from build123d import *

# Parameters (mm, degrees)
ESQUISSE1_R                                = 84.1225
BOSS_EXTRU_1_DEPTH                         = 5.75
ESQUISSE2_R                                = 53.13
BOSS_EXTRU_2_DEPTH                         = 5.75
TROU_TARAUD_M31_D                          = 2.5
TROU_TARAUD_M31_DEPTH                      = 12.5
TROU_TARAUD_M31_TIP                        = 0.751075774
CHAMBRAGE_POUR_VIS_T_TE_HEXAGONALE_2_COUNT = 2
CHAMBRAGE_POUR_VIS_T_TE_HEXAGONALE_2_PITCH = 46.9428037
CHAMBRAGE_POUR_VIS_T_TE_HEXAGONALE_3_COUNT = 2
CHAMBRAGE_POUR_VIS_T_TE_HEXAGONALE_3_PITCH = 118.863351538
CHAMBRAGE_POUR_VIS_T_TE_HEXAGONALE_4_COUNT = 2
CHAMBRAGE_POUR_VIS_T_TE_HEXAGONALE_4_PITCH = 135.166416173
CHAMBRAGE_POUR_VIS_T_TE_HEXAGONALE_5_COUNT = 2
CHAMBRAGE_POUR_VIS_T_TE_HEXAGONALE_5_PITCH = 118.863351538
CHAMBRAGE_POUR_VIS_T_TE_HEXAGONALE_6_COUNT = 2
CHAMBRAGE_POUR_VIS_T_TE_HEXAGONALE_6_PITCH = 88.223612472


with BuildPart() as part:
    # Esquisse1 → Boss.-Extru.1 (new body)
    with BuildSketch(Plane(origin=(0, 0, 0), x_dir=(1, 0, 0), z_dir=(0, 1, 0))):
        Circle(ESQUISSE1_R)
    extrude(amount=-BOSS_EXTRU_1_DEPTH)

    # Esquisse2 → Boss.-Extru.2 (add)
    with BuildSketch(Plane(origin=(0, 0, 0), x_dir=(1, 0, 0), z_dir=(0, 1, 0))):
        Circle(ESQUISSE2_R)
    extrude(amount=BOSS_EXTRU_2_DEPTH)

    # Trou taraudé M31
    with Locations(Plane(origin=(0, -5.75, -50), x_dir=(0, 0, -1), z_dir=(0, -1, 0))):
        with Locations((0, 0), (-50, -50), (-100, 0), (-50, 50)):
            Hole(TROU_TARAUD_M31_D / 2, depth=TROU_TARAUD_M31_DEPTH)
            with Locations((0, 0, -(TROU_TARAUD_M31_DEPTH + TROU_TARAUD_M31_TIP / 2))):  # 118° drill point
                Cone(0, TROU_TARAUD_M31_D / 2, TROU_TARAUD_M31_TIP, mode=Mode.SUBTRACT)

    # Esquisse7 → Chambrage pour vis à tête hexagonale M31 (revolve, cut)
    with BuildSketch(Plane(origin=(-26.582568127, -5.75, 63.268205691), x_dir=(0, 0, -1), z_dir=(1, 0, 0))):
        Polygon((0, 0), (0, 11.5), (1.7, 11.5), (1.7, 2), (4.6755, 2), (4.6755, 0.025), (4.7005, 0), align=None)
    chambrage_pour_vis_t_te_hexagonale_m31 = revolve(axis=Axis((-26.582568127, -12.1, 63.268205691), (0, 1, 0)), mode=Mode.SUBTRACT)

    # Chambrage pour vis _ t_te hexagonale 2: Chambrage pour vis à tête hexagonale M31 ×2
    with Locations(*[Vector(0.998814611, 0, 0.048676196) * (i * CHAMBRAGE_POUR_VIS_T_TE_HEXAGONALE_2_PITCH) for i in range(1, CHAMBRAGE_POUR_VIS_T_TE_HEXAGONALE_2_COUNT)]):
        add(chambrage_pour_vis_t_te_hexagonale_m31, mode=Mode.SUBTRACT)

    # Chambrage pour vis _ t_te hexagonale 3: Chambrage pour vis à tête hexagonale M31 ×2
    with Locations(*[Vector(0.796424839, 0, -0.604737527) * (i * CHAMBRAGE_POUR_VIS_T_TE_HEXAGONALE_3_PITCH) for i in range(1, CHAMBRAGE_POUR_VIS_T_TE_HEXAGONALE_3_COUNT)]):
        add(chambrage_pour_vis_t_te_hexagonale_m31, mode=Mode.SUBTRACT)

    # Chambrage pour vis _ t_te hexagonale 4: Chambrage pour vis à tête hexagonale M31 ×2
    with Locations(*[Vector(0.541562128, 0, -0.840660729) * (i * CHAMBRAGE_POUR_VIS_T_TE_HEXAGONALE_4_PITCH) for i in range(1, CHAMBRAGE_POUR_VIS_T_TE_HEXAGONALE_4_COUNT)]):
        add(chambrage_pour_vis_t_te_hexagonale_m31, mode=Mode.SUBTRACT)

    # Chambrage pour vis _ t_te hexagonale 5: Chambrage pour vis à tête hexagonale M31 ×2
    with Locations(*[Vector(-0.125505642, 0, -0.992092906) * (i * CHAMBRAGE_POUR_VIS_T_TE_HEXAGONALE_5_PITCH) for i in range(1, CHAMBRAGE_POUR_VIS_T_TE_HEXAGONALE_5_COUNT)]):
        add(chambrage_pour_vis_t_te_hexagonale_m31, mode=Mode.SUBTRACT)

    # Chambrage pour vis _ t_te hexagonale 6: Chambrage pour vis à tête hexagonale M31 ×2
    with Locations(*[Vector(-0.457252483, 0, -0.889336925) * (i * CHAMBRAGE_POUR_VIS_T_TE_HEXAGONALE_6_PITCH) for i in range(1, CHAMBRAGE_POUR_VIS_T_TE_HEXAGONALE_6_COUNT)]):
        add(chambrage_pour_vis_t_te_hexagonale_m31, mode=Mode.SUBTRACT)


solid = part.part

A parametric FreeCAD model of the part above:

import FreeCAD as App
import Part
import Sketcher
from FreeCAD import Vector
Q = App.Units.Quantity


def add_polygon(sketch, points):
    """Adds a closed chain of lines whose ends are joined by coincident constraints."""
    first, n = sketch.GeometryCount, len(points)
    for a, b in zip(points, points[1:] + points[:1]):
        sketch.addGeometry(Part.LineSegment(App.Vector(*a, 0), App.Vector(*b, 0)), False)
    for i in range(n):
        sketch.addConstraint(Sketcher.Constraint("Coincident", first + i, 2, first + (i + 1) % n, 1))

doc = App.newDocument("Part")
body = doc.addObject("PartDesign::Body", "Body")

# Sketch on XZ plane
sketch1 = doc.addObject("Sketcher::SketchObject", "Sketch")
body.addObject(sketch1)
sketch1.AttachmentSupport = (doc.XZ_Plane, [""])
sketch1.MapMode = "FlatFace"
sketch1.addGeometry(Part.Circle(Vector(0, 0, 0), Vector(0, 0, 1), 84), False)
sketch1.addConstraint(Sketcher.Constraint("Coincident", 0, 3, -1, 1))
sketch1.addConstraint(Sketcher.Constraint("Diameter", 0, 168.245))
pad1 = doc.addObject("PartDesign::Pad", "Pad")
body.addObject(pad1)
pad1.Profile = sketch1
pad1.Length = 5.75

# Sketch on XZ plane
sketch2 = doc.addObject("Sketcher::SketchObject", "Sketch001")
body.addObject(sketch2)
sketch2.AttachmentSupport = (doc.XZ_Plane, [""])
sketch2.MapMode = "FlatFace"
sketch2.addGeometry(Part.Circle(Vector(0, 0, 0), Vector(0, 0, 1), 53), False)
sketch2.addConstraint(Sketcher.Constraint("Coincident", 0, 3, -1, 1))
sketch2.addConstraint(Sketcher.Constraint("Diameter", 0, 106.26))
pad2 = doc.addObject("PartDesign::Pad", "Pad001")
body.addObject(pad2)
pad2.Profile = sketch2
pad2.Length = 5.75
pad2.Reversed = True

# Sketch on XZ plane
sketch3 = doc.addObject("Sketcher::SketchObject", "Sketch002")
body.addObject(sketch3)
sketch3.AttachmentSupport = (doc.XZ_Plane, [""])
sketch3.MapMode = "FlatFace"
sketch3.AttachmentOffset = App.Placement(Vector(0, 0, 5.75), App.Rotation())
sketch3.addGeometry(Part.Circle(Vector(0, -50, 0), Vector(0, 0, 1), 1.2), False)
sketch3.addGeometry(Part.Circle(Vector(-50, 0, 0), Vector(0, 0, 1), 1.2), False)
sketch3.addGeometry(Part.Circle(Vector(0, 50, 0), Vector(0, 0, 1), 1.2), False)
sketch3.addGeometry(Part.Circle(Vector(50, 0, 0), Vector(0, 0, 1), 1.2), False)
sketch3.addConstraint(Sketcher.Constraint("Equal", 0, 1))
sketch3.addConstraint(Sketcher.Constraint("Equal", 1, 2))
sketch3.addConstraint(Sketcher.Constraint("Equal", 2, 3))
sketch3.addConstraint(Sketcher.Constraint("Symmetric", 0, 3, 2, 3, -1, 1))
sketch3.addConstraint(Sketcher.Constraint("Symmetric", 1, 3, 3, 3, -1, 1))
sketch3.addConstraint(Sketcher.Constraint("PointOnObject", 0, 3, -2))
sketch3.addConstraint(Sketcher.Constraint("PointOnObject", 1, 3, -1))
sketch3.addConstraint(Sketcher.Constraint("Diameter", 0, 2.5))
sketch3.addConstraint(Sketcher.Constraint("DistanceY", 0, 3, -1, 1, 50.0))
sketch3.addConstraint(Sketcher.Constraint("DistanceX", 1, 3, -1, 1, 50.0))
doc.recompute()
hole = doc.addObject("PartDesign::Hole", "Hole")
body.addObject(hole)
hole.Profile = sketch3
hole.ThreadType = "None"
hole.Diameter = 2.5
hole.DepthType = "Dimension"
hole.Depth = 12.5
hole.DrillPoint = "Angled"
hole.DrillPointAngle = 118

# Sketch on YZ plane
sketch4 = doc.addObject("Sketcher::SketchObject", "Sketch003")
body.addObject(sketch4)
sketch4.AttachmentSupport = (doc.YZ_Plane, [""])
sketch4.MapMode = "FlatFace"
sketch4.AttachmentOffset = App.Placement(Vector(0, 0, -26.582568), App.Rotation())
add_polygon(sketch4, [(5.75, 63.268), (-5.75, 63.268), (-5.75, 58.568), (-5.725, 58.593), (-3.75, 58.593), (-3.75, 61.568), (5.75, 61.568)])  # lines 0-6
sketch4.addGeometry(Part.LineSegment(Vector(-5.75, 63.268, 0), Vector(5.75, 63.268, 0)), True)  # axis
sketch4.addConstraint(Sketcher.Constraint("Horizontal", 0))
sketch4.addConstraint(Sketcher.Constraint("Vertical", 1))
sketch4.addConstraint(Sketcher.Constraint("Horizontal", 3))
sketch4.addConstraint(Sketcher.Constraint("Vertical", 4))
sketch4.addConstraint(Sketcher.Constraint("Horizontal", 5))
sketch4.addConstraint(Sketcher.Constraint("Vertical", 6))
sketch4.addConstraint(Sketcher.Constraint("Horizontal", 7))
sketch4.addConstraint(Sketcher.Constraint("Coincident", 7, 1, 0, 2))
sketch4.addConstraint(Sketcher.Constraint("Vertical", 5, 2, 7, 2))
sketch4.addConstraint(Sketcher.Constraint("Angle", 2, Q("45 deg")))
sketch4.addConstraint(Sketcher.Constraint("DistanceX", 0, 2, 0, 1, 11.5))
sketch4.addConstraint(Sketcher.Constraint("DistanceX", 5, 1, 5, 2, 9.5))
sketch4.addConstraint(Sketcher.Constraint("DistanceY", 6, 1, 6, 2, 1.7))
sketch4.addConstraint(Sketcher.Constraint("DistanceX", 3, 1, 3, 2, 1.975))
sketch4.addConstraint(Sketcher.Constraint("DistanceX", 0, 2, -1, 1, 5.75))
sketch4.addConstraint(Sketcher.Constraint("DistanceY", 1, 2, 1, 1, 4.7005))
sketch4.addConstraint(Sketcher.Constraint("DistanceY", -1, 1, 0, 2, 63.268206))
groove = doc.addObject("PartDesign::Groove", "Groove")
body.addObject(groove)
groove.Profile = sketch4
groove.ReferenceAxis = (sketch4, ["Axis0"])
groove.Angle = 360
doc.recompute()

datumline = doc.addObject("PartDesign::Line", "DatumLine")
body.addObject(datumline)
datumline.Placement = App.Placement(Vector(0, 0, 0), App.Rotation(Vector(0, 0, 1), Vector(0.998814611, 0, 0.048676196)))
linearpattern = doc.addObject("PartDesign::LinearPattern", "LinearPattern")
body.addObject(linearpattern)
linearpattern.Originals = [groove]
linearpattern.Direction = (datumline, [""])
linearpattern.Mode = "offset"
linearpattern.Offset = 46.942804
linearpattern.Occurrences = 2
body.Tip = linearpattern
doc.recompute()

datumline2 = doc.addObject("PartDesign::Line", "DatumLine001")
body.addObject(datumline2)
datumline2.Placement = App.Placement(Vector(0, 0, 0), App.Rotation(Vector(0, 0, 1), Vector(0.796424839, 0, -0.604737527)))
linearpattern2 = doc.addObject("PartDesign::LinearPattern", "LinearPattern001")
body.addObject(linearpattern2)
linearpattern2.Originals = [groove]
linearpattern2.Direction = (datumline2, [""])
linearpattern2.Mode = "offset"
linearpattern2.Offset = 118.863352
linearpattern2.Occurrences = 2
body.Tip = linearpattern2
doc.recompute()

datumline3 = doc.addObject("PartDesign::Line", "DatumLine002")
body.addObject(datumline3)
datumline3.Placement = App.Placement(Vector(0, 0, 0), App.Rotation(Vector(0, 0, 1), Vector(0.541562128, 0, -0.840660729)))
linearpattern3 = doc.addObject("PartDesign::LinearPattern", "LinearPattern002")
body.addObject(linearpattern3)
linearpattern3.Originals = [groove]
linearpattern3.Direction = (datumline3, [""])
linearpattern3.Mode = "offset"
linearpattern3.Offset = 135.166416
linearpattern3.Occurrences = 2
body.Tip = linearpattern3
doc.recompute()

datumline4 = doc.addObject("PartDesign::Line", "DatumLine003")
body.addObject(datumline4)
datumline4.Placement = App.Placement(Vector(0, 0, 0), App.Rotation(Vector(0, 0, 1), Vector(-0.125505642, 0, -0.992092906)))
linearpattern4 = doc.addObject("PartDesign::LinearPattern", "LinearPattern003")
body.addObject(linearpattern4)
linearpattern4.Originals = [groove]
linearpattern4.Direction = (datumline4, [""])
linearpattern4.Mode = "offset"
linearpattern4.Offset = 118.863352
linearpattern4.Occurrences = 2
body.Tip = linearpattern4
doc.recompute()

datumline5 = doc.addObject("PartDesign::Line", "DatumLine004")
body.addObject(datumline5)
datumline5.Placement = App.Placement(Vector(0, 0, 0), App.Rotation(Vector(0, 0, 1), Vector(-0.457252483, 0, -0.889336925)))
linearpattern5 = doc.addObject("PartDesign::LinearPattern", "LinearPattern004")
body.addObject(linearpattern5)
linearpattern5.Originals = [groove]
linearpattern5.Direction = (datumline5, [""])
linearpattern5.Mode = "offset"
linearpattern5.Offset = 88.223612
linearpattern5.Occurrences = 2
body.Tip = linearpattern5

doc.recompute()
